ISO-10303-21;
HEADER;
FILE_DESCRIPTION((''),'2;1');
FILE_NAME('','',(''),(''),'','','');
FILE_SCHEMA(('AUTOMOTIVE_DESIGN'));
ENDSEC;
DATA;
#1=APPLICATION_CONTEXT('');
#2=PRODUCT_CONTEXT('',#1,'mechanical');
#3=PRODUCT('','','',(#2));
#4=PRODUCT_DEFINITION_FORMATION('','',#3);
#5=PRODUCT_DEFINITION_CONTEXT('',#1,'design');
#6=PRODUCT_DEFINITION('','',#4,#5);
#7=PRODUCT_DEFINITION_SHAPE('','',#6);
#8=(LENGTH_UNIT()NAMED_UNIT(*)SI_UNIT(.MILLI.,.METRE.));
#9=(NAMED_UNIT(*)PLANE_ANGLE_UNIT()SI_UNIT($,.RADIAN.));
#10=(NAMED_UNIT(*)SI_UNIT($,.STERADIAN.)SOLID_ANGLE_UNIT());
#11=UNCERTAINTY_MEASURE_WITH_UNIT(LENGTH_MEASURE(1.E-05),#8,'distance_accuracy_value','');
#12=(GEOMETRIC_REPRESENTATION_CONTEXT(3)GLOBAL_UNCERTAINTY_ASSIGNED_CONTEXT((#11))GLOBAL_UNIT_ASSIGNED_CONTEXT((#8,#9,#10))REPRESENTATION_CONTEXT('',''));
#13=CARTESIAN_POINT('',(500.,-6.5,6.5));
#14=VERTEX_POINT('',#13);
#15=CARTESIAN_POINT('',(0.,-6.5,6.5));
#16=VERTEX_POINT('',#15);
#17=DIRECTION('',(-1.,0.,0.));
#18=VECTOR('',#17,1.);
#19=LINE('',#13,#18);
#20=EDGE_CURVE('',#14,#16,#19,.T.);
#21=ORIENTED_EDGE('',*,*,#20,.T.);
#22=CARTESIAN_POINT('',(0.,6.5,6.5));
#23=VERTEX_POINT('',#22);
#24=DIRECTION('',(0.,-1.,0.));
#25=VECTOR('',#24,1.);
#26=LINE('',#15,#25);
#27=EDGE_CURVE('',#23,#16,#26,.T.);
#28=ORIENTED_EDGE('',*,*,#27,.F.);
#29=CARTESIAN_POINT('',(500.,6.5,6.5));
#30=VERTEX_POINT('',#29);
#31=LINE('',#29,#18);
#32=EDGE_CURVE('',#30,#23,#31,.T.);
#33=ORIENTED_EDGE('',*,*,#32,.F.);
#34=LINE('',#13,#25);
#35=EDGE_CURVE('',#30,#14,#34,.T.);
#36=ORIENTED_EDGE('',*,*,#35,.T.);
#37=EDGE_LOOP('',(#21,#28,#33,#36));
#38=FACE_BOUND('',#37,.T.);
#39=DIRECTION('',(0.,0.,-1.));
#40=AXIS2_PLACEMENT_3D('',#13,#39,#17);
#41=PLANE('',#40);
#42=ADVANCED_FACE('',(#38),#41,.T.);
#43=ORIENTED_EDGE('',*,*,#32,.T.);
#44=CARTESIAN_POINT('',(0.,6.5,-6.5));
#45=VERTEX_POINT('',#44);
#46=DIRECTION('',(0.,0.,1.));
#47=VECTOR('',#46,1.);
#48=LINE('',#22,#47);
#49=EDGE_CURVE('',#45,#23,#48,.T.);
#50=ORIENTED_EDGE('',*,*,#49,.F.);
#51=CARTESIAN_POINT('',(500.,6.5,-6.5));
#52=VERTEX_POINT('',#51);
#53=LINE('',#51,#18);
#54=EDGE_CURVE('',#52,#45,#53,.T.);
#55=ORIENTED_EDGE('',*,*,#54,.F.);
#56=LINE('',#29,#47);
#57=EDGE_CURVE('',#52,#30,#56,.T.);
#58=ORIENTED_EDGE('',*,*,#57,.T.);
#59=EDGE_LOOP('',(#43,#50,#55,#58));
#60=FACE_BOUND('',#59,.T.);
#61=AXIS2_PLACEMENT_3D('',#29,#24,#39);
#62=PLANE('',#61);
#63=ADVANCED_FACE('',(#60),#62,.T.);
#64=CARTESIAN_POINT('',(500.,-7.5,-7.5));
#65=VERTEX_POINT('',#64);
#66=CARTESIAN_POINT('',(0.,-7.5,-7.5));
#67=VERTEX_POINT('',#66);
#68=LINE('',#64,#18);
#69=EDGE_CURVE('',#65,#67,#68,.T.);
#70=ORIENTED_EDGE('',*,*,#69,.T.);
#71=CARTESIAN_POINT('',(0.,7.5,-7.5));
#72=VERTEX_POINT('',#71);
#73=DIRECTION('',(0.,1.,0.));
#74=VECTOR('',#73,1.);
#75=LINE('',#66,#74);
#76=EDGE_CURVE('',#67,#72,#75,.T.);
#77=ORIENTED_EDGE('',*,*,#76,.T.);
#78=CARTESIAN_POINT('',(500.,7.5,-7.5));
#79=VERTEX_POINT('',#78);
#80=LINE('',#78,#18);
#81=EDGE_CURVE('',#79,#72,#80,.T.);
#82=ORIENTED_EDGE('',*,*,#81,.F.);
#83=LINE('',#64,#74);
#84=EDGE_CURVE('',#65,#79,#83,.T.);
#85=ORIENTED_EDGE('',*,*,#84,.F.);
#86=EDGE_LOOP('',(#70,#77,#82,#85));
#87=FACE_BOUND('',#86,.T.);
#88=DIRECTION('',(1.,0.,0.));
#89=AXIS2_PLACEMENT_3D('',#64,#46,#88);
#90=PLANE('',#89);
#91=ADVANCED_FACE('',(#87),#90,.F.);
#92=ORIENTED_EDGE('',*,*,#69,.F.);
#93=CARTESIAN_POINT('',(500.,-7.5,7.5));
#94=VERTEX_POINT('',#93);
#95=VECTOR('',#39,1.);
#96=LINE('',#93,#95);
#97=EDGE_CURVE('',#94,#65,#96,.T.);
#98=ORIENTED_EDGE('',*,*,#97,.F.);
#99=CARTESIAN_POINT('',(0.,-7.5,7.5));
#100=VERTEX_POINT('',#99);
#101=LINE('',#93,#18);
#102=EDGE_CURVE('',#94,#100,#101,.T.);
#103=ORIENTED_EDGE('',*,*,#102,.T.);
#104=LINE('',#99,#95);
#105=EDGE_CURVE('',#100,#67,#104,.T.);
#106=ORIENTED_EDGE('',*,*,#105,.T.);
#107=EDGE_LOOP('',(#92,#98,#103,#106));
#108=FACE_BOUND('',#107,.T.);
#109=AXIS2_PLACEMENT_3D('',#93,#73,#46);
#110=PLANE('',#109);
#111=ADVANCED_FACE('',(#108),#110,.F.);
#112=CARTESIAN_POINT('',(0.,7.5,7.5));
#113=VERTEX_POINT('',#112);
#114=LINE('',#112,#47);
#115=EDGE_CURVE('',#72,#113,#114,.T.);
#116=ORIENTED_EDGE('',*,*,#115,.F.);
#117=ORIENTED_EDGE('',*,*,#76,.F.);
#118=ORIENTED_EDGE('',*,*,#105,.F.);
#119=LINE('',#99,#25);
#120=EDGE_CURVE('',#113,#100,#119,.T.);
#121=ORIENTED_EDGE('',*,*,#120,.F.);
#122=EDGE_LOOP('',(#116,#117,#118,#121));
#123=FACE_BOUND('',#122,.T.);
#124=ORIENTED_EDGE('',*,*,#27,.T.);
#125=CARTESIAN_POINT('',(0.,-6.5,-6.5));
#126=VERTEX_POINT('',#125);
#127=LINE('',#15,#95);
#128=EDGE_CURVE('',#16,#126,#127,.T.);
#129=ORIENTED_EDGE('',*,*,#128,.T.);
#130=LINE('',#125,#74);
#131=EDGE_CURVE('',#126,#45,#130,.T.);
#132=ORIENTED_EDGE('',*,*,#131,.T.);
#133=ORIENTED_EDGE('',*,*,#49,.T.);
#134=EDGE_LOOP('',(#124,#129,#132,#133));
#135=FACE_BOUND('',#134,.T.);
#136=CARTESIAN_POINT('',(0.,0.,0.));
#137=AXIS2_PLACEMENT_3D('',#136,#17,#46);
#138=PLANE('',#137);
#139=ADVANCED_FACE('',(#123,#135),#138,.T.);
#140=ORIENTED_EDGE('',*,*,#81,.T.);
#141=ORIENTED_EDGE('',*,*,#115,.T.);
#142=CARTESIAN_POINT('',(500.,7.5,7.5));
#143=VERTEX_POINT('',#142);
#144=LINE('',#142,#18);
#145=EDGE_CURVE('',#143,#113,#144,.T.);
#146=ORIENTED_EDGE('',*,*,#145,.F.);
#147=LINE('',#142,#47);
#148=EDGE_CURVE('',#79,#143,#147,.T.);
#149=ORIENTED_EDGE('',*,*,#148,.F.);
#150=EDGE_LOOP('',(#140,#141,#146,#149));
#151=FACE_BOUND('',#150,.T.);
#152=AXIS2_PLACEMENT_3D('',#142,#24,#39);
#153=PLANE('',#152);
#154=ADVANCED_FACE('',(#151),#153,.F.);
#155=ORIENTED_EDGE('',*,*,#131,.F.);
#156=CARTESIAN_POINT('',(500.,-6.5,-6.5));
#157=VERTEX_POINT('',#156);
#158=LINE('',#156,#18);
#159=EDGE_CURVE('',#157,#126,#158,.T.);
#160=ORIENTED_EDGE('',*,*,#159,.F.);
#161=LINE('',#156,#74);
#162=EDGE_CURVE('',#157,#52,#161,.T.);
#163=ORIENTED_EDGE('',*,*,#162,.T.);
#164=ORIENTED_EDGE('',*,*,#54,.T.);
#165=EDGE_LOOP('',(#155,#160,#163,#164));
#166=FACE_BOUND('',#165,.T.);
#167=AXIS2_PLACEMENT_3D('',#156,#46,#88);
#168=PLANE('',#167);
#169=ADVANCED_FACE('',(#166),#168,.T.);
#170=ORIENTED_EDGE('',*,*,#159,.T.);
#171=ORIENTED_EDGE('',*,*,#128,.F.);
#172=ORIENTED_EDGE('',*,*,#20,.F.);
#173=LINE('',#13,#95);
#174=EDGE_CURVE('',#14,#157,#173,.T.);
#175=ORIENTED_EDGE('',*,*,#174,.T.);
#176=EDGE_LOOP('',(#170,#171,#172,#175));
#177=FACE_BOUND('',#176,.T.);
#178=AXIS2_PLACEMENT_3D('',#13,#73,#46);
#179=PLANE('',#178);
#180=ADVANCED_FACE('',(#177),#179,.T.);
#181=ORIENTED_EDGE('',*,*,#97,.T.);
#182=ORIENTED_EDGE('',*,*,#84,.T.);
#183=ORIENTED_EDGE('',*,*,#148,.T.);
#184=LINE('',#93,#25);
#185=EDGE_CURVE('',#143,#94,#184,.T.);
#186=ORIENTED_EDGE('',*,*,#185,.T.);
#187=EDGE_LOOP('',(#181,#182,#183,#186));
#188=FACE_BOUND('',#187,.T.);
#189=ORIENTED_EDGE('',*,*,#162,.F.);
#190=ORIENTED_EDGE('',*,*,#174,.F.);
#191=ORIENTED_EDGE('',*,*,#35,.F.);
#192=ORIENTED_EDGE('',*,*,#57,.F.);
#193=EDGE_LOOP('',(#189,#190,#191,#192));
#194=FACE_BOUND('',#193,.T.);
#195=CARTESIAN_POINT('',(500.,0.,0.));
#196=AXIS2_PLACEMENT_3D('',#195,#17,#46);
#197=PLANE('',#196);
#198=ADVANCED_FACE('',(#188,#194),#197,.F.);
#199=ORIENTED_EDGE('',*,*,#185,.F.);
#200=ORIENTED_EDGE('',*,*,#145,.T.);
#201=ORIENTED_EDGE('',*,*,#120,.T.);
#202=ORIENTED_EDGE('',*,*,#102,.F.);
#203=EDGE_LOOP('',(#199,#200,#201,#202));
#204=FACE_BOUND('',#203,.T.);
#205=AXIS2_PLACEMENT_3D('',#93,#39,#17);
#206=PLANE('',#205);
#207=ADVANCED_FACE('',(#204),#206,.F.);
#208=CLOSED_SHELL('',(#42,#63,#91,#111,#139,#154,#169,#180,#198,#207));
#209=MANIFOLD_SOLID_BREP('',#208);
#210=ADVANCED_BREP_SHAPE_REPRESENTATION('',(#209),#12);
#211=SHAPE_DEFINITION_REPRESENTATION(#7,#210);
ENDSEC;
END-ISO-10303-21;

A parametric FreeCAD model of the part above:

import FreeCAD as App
import Part
import Sketcher

V = App.Vector
Q = App.Units.Quantity

doc = App.newDocument("Part")
body = doc.addObject("PartDesign::Body", "Body")

sketch1 = body.newObject("Sketcher::SketchObject", "Sketch")
sketch1.AttachmentSupport = (doc.getObject("YZ_Plane"), [""])
sketch1.MapMode = "FlatFace"
sketch1.addGeometry([
    Part.LineSegment(V(8, 8, 0), V(-8, 8, 0)),
    Part.LineSegment(V(-8, 8, 0), V(-8, -8, 0)),
    Part.LineSegment(V(-8, -8, 0), V(8, -8, 0)),
    Part.LineSegment(V(8, -8, 0), V(8, 8, 0)),
    Part.LineSegment(V(-6, -6, 0), V(-6, 6, 0)),
    Part.LineSegment(V(-6, 6, 0), V(6, 6, 0)),
    Part.LineSegment(V(6, 6, 0), V(6, -6, 0)),
    Part.LineSegment(V(6, -6, 0), V(-6, -6, 0)),
], False)
sketch1.addConstraint([
    Sketcher.Constraint("Coincident", 0, 2, 1, 1),
    Sketcher.Constraint("Coincident", 1, 2, 2, 1),
    Sketcher.Constraint("Coincident", 2, 2, 3, 1),
    Sketcher.Constraint("Coincident", 3, 2, 0, 1),
    Sketcher.Constraint("Coincident", 4, 2, 5, 1),
    Sketcher.Constraint("Coincident", 5, 2, 6, 1),
    Sketcher.Constraint("Coincident", 6, 2, 7, 1),
    Sketcher.Constraint("Coincident", 7, 2, 4, 1),
    Sketcher.Constraint("Horizontal", 0),
    Sketcher.Constraint("Vertical", 1),
    Sketcher.Constraint("Horizontal", 2),
    Sketcher.Constraint("Vertical", 3),
    Sketcher.Constraint("Vertical", 4),
    Sketcher.Constraint("Horizontal", 5),
    Sketcher.Constraint("Vertical", 6),
    Sketcher.Constraint("Horizontal", 7),
    Sketcher.Constraint("Symmetric", 0, 2, 2, 2, -1, 1),
    Sketcher.Constraint("Symmetric", 4, 2, 6, 2, -1, 1),
    Sketcher.Constraint("Equal", 2, 1),
    Sketcher.Constraint("Equal", 7, 4),
    Sketcher.Constraint("DistanceX", 0, 2, 0, 1, Q("15 mm")),
    Sketcher.Constraint("DistanceX", 5, 1, 5, 2, Q("13 mm")),
])
pad1 = body.newObject("PartDesign::Pad", "Pad")
pad1.Profile = sketch1
pad1.Length = 500

doc.recompute()
